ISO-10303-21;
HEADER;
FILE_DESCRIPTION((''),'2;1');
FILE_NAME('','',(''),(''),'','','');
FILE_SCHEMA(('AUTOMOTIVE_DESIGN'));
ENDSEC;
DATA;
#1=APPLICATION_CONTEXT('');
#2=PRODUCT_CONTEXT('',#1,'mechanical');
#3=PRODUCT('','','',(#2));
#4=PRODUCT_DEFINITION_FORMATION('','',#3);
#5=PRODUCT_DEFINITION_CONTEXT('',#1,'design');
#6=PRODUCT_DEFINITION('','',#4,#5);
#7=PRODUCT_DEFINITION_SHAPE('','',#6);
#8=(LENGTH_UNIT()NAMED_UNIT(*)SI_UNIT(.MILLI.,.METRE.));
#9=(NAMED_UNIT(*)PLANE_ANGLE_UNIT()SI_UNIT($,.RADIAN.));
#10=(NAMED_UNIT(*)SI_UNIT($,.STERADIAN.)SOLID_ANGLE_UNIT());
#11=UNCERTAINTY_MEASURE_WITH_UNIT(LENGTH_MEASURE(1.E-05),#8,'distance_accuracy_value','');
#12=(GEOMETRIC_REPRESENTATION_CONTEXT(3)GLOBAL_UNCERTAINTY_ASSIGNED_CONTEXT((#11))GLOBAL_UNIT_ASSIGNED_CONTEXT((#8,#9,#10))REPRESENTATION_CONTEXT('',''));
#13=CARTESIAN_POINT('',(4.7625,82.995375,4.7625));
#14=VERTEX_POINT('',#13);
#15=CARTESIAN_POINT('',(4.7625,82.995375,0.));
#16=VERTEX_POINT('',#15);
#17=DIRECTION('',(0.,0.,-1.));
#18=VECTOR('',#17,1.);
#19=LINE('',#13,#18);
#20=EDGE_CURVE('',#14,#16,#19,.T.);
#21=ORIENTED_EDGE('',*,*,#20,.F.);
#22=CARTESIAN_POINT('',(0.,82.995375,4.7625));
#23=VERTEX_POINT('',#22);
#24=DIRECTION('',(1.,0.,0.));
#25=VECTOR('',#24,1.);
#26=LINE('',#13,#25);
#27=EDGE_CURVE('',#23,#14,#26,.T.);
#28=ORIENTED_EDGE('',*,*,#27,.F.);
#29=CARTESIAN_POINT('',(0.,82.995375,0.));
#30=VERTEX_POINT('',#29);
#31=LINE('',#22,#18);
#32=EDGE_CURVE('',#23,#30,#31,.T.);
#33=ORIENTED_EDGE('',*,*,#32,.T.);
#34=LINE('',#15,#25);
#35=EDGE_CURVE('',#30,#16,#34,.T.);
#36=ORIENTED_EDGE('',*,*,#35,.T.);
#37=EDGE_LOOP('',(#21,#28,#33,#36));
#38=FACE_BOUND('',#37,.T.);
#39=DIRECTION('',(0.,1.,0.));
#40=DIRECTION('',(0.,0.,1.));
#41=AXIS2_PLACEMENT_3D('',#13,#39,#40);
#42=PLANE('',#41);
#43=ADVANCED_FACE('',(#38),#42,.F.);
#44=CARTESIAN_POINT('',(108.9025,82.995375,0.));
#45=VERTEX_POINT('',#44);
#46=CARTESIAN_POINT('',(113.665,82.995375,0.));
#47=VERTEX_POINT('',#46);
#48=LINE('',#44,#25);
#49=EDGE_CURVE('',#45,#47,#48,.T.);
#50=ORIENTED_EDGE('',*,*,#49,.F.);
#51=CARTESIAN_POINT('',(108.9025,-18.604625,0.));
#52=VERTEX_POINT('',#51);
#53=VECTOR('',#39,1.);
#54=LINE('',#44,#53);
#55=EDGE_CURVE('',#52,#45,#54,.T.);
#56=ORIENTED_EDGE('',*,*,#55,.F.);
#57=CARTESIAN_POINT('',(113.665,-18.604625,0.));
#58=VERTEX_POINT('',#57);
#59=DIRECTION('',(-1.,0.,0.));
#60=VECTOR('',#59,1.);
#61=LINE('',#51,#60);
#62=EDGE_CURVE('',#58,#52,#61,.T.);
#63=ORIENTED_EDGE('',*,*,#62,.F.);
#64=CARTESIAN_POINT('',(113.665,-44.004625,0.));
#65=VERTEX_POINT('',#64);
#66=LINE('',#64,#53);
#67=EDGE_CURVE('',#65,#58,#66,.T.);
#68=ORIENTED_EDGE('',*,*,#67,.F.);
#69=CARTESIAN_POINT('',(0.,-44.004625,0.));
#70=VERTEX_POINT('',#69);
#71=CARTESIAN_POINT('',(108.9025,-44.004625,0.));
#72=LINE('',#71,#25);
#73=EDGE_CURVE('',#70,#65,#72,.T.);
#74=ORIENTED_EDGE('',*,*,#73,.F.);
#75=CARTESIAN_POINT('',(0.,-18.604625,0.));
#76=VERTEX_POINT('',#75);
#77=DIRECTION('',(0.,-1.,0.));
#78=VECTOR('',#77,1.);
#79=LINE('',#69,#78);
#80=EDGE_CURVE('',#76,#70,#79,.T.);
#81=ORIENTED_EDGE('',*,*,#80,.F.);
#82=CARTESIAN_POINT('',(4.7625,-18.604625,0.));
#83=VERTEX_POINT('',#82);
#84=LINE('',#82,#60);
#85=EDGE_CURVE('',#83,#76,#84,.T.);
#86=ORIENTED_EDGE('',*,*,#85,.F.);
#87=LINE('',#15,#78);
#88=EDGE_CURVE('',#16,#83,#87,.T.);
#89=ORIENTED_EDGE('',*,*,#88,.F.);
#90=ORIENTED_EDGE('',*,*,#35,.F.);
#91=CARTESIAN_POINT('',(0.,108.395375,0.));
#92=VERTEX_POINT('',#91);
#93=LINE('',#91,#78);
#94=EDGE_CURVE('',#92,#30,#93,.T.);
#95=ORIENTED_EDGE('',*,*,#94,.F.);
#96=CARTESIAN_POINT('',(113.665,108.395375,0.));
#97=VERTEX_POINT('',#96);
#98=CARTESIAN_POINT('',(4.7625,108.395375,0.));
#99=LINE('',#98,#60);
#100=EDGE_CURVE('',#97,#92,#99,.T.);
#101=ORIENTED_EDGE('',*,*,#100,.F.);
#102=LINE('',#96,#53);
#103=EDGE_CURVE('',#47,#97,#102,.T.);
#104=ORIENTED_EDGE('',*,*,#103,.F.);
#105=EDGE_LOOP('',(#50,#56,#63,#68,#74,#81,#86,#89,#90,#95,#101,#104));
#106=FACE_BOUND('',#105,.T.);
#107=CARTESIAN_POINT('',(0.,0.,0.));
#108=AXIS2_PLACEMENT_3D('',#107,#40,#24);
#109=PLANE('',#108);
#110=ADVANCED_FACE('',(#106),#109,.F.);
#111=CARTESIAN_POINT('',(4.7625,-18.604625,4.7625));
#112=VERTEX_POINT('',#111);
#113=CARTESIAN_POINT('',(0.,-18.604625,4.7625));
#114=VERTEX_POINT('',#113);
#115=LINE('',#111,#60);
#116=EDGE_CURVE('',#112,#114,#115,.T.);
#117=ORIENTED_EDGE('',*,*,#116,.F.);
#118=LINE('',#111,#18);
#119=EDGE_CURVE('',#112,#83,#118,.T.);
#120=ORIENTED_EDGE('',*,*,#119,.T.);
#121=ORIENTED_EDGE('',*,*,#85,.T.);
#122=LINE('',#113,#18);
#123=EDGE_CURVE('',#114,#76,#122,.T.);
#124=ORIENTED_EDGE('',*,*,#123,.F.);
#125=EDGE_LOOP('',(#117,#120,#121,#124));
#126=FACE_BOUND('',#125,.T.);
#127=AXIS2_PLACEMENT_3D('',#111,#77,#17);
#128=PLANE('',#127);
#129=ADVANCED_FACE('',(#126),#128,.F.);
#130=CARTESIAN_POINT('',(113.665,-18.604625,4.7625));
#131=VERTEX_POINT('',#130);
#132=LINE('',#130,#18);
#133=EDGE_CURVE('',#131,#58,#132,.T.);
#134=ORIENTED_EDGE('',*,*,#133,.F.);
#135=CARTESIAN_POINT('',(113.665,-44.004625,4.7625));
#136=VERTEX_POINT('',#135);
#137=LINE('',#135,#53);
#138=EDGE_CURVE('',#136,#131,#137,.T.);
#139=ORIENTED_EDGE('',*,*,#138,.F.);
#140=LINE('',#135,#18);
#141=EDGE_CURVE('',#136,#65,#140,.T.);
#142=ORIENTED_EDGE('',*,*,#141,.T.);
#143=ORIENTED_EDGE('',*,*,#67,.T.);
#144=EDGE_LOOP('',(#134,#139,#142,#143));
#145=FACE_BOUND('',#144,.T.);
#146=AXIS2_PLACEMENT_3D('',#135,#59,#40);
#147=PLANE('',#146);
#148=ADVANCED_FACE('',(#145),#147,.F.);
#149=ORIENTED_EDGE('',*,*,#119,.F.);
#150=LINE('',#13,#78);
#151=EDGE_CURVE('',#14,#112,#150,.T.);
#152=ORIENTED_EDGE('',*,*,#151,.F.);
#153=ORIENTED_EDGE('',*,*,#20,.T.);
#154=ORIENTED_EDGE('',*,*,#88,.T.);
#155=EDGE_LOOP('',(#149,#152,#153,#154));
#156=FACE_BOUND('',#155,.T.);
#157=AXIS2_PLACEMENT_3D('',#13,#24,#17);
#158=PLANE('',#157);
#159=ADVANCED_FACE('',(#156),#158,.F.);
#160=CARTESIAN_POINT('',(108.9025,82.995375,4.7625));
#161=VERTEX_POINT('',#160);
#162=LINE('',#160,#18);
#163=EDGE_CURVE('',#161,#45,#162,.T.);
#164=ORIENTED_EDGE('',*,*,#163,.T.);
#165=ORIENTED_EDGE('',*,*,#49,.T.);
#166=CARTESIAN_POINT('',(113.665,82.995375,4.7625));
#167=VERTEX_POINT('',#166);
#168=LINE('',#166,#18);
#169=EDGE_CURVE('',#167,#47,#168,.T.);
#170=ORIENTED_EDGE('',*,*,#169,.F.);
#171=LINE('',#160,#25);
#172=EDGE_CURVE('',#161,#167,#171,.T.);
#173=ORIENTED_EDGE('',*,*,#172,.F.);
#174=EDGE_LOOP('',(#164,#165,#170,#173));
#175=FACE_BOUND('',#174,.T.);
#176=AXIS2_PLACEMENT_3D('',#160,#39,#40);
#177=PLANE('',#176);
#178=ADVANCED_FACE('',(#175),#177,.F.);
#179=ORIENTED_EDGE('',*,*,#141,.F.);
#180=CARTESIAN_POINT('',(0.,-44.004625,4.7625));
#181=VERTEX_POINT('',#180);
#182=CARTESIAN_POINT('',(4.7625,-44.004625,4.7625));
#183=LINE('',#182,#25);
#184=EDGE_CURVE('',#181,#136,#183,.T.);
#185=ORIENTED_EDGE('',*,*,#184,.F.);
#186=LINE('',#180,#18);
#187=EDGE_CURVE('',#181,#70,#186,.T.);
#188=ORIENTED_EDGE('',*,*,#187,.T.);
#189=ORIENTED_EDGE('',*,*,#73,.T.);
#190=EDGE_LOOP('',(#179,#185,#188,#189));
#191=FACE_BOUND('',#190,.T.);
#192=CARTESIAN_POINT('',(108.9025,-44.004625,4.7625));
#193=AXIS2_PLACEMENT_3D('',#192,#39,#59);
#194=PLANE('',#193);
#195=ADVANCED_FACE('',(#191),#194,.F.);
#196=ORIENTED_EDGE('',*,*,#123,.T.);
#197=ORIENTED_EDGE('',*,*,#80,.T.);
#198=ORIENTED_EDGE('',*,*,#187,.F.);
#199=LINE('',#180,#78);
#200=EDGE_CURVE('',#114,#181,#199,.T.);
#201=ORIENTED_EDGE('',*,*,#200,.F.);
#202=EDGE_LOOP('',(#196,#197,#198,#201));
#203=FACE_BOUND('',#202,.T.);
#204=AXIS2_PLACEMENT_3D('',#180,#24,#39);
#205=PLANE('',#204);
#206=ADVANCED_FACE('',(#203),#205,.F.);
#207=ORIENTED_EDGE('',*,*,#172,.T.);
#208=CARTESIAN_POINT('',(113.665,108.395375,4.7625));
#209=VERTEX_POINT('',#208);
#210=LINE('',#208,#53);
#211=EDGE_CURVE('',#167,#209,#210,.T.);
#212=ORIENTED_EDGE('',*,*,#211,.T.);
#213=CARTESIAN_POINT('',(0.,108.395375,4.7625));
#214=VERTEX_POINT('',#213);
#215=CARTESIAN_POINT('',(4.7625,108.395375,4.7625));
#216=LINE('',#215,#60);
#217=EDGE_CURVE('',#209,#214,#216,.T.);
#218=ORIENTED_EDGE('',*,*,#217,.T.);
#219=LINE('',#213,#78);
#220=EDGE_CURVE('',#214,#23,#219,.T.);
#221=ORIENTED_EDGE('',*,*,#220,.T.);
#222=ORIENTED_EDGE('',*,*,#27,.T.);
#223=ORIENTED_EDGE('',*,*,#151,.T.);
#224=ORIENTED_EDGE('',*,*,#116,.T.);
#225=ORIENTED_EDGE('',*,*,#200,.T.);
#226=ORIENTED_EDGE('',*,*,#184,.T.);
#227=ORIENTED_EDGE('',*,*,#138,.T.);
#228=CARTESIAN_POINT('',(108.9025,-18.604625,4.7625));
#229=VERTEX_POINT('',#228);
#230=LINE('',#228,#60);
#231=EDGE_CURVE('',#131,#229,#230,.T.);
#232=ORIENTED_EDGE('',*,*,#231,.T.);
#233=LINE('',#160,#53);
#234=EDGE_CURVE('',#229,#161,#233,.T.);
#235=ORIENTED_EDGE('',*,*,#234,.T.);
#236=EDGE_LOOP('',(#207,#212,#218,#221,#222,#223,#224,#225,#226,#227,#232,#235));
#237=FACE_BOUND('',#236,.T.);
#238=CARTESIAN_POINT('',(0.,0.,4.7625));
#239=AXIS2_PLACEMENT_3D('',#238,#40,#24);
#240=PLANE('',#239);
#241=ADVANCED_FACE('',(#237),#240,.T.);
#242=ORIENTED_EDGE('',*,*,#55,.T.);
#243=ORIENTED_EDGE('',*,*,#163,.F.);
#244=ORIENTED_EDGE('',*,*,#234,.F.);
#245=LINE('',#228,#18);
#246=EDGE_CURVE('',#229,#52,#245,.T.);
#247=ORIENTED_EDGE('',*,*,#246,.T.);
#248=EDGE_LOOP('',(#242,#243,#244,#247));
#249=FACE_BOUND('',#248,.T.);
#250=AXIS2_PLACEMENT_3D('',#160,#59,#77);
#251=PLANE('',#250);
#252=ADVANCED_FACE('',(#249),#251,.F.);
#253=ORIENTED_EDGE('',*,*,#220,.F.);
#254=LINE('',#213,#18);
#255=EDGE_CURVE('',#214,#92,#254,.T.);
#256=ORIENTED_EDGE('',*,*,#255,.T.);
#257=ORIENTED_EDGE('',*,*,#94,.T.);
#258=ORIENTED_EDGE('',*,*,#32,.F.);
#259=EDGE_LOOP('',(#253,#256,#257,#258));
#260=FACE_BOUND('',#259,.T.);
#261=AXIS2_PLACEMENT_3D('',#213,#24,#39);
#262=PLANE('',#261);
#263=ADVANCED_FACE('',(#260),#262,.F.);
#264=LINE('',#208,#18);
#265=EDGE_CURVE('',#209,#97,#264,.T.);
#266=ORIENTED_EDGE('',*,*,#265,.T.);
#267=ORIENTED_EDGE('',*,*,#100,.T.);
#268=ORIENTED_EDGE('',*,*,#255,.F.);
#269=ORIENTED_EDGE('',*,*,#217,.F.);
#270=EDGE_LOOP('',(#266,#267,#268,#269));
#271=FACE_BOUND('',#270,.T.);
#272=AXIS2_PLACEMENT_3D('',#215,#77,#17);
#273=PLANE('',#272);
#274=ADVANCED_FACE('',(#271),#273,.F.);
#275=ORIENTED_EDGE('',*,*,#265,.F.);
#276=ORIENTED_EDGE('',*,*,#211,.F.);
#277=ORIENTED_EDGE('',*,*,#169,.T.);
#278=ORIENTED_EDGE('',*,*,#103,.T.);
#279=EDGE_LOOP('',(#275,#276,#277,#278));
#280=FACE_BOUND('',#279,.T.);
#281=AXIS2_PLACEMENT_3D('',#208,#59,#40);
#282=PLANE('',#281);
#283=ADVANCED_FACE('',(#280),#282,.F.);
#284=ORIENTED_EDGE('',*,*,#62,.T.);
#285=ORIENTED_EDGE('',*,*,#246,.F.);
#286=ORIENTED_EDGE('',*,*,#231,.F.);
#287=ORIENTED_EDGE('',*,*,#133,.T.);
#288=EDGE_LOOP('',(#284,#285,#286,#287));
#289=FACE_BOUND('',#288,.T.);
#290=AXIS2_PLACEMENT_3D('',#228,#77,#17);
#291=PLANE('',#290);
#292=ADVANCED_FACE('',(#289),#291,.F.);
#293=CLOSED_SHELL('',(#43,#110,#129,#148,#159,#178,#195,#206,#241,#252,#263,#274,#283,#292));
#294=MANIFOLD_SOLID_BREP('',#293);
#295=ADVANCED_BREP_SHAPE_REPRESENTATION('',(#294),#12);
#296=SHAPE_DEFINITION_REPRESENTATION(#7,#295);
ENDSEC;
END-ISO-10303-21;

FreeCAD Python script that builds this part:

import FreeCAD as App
import Part
import Sketcher
Q = App.Units.Quantity


def add_polygon(sketch, points):
    """Adds a closed chain of lines whose ends are joined by coincident constraints."""
    first, n = sketch.GeometryCount, len(points)
    for a, b in zip(points, points[1:] + points[:1]):
        sketch.addGeometry(Part.LineSegment(App.Vector(*a, 0), App.Vector(*b, 0)), False)
    for i in range(n):
        sketch.addConstraint(Sketcher.Constraint("Coincident", first + i, 2, first + (i + 1) % n, 1))

doc = App.newDocument("Part")
params = doc.addObject("Spreadsheet::Sheet", "Params")
for row, (alias, value) in enumerate([
    ("sketch1_height", "1 in"),
    ("sketch1_height2", "4 in"),
    ("sketch1_width", "4.475 in"),
    ("pad1_length", "0.1875 in"),
], start=1):
    params.set(f"A{row}", alias)
    params.set(f"B{row}", "=" + value)
    params.setAlias(f"B{row}", alias)

body = doc.addObject("PartDesign::Body", "Body")

# Sketch on XY plane
sketch1 = body.newObject("Sketcher::SketchObject", "Sketch")
sketch1.AttachmentSupport = (doc.getObject("XY_Plane"), [""])
sketch1.MapMode = "FlatFace"
add_polygon(sketch1, [(113.665, 108.395375), (0, 108.395375), (0, 82.995375), (4.7625, 82.995375), (4.7625, -18.604625), (0, -18.604625), (0, -44.004625), (113.665, -44.004625), (113.665, -18.604625), (108.9025, -18.604625), (108.9025, 82.995375), (113.665, 82.995375)])  # lines 0-11
sketch1.addConstraint(Sketcher.Constraint("Horizontal", 0))
sketch1.addConstraint(Sketcher.Constraint("Vertical", 1))
sketch1.addConstraint(Sketcher.Constraint("Horizontal", 2))
sketch1.addConstraint(Sketcher.Constraint("Vertical", 3))
sketch1.addConstraint(Sketcher.Constraint("Horizontal", 4))
sketch1.addConstraint(Sketcher.Constraint("Vertical", 5))
sketch1.addConstraint(Sketcher.Constraint("Horizontal", 6))
sketch1.addConstraint(Sketcher.Constraint("Vertical", 7))
sketch1.addConstraint(Sketcher.Constraint("Horizontal", 8))
sketch1.addConstraint(Sketcher.Constraint("Vertical", 9))
sketch1.addConstraint(Sketcher.Constraint("Horizontal", 10))
sketch1.addConstraint(Sketcher.Constraint("Vertical", 11))
sketch1.addConstraint(Sketcher.Constraint("PointOnObject", 0, 2, -2))
sketch1.addConstraint(Sketcher.Constraint("PointOnObject", 4, 2, -2))
sketch1.addConstraint(Sketcher.Constraint("Horizontal", 4, 2, 7, 2))
sketch1.addConstraint(Sketcher.Constraint("Horizontal", 2, 2, 9, 2))
sketch1.addConstraint(Sketcher.Constraint("Vertical", 7, 2, 10, 2))
sketch1.addConstraint(Sketcher.Constraint("Equal", 4, 8))
sketch1.addConstraint(Sketcher.Constraint("Equal", 1, 5))
sketch1.addConstraint(Sketcher.Constraint("DistanceY", 1, 2, 1, 1, Q("1 in")))
sketch1.addConstraint(Sketcher.Constraint("DistanceY", 3, 2, 3, 1, Q("4 in")))
sketch1.addConstraint(Sketcher.Constraint("DistanceX", 3, 2, 8, 2, Q("4.1 in")))
sketch1.addConstraint(Sketcher.Constraint("DistanceX", 0, 2, 0, 1, Q("4.475 in")))
sketch1.addConstraint(Sketcher.Constraint("DistanceY", -1, 1, 0, 2, Q("108.395375 mm")))
sketch1.setExpression("Constraints[31]", "Params.sketch1_height")
sketch1.setExpression("Constraints[32]", "Params.sketch1_height2")
sketch1.setExpression("Constraints[34]", "Params.sketch1_width")
pad1 = body.newObject("PartDesign::Pad", "Pad")
pad1.Profile = sketch1
pad1.setExpression("Length", "Params.pad1_length")

doc.recompute()
